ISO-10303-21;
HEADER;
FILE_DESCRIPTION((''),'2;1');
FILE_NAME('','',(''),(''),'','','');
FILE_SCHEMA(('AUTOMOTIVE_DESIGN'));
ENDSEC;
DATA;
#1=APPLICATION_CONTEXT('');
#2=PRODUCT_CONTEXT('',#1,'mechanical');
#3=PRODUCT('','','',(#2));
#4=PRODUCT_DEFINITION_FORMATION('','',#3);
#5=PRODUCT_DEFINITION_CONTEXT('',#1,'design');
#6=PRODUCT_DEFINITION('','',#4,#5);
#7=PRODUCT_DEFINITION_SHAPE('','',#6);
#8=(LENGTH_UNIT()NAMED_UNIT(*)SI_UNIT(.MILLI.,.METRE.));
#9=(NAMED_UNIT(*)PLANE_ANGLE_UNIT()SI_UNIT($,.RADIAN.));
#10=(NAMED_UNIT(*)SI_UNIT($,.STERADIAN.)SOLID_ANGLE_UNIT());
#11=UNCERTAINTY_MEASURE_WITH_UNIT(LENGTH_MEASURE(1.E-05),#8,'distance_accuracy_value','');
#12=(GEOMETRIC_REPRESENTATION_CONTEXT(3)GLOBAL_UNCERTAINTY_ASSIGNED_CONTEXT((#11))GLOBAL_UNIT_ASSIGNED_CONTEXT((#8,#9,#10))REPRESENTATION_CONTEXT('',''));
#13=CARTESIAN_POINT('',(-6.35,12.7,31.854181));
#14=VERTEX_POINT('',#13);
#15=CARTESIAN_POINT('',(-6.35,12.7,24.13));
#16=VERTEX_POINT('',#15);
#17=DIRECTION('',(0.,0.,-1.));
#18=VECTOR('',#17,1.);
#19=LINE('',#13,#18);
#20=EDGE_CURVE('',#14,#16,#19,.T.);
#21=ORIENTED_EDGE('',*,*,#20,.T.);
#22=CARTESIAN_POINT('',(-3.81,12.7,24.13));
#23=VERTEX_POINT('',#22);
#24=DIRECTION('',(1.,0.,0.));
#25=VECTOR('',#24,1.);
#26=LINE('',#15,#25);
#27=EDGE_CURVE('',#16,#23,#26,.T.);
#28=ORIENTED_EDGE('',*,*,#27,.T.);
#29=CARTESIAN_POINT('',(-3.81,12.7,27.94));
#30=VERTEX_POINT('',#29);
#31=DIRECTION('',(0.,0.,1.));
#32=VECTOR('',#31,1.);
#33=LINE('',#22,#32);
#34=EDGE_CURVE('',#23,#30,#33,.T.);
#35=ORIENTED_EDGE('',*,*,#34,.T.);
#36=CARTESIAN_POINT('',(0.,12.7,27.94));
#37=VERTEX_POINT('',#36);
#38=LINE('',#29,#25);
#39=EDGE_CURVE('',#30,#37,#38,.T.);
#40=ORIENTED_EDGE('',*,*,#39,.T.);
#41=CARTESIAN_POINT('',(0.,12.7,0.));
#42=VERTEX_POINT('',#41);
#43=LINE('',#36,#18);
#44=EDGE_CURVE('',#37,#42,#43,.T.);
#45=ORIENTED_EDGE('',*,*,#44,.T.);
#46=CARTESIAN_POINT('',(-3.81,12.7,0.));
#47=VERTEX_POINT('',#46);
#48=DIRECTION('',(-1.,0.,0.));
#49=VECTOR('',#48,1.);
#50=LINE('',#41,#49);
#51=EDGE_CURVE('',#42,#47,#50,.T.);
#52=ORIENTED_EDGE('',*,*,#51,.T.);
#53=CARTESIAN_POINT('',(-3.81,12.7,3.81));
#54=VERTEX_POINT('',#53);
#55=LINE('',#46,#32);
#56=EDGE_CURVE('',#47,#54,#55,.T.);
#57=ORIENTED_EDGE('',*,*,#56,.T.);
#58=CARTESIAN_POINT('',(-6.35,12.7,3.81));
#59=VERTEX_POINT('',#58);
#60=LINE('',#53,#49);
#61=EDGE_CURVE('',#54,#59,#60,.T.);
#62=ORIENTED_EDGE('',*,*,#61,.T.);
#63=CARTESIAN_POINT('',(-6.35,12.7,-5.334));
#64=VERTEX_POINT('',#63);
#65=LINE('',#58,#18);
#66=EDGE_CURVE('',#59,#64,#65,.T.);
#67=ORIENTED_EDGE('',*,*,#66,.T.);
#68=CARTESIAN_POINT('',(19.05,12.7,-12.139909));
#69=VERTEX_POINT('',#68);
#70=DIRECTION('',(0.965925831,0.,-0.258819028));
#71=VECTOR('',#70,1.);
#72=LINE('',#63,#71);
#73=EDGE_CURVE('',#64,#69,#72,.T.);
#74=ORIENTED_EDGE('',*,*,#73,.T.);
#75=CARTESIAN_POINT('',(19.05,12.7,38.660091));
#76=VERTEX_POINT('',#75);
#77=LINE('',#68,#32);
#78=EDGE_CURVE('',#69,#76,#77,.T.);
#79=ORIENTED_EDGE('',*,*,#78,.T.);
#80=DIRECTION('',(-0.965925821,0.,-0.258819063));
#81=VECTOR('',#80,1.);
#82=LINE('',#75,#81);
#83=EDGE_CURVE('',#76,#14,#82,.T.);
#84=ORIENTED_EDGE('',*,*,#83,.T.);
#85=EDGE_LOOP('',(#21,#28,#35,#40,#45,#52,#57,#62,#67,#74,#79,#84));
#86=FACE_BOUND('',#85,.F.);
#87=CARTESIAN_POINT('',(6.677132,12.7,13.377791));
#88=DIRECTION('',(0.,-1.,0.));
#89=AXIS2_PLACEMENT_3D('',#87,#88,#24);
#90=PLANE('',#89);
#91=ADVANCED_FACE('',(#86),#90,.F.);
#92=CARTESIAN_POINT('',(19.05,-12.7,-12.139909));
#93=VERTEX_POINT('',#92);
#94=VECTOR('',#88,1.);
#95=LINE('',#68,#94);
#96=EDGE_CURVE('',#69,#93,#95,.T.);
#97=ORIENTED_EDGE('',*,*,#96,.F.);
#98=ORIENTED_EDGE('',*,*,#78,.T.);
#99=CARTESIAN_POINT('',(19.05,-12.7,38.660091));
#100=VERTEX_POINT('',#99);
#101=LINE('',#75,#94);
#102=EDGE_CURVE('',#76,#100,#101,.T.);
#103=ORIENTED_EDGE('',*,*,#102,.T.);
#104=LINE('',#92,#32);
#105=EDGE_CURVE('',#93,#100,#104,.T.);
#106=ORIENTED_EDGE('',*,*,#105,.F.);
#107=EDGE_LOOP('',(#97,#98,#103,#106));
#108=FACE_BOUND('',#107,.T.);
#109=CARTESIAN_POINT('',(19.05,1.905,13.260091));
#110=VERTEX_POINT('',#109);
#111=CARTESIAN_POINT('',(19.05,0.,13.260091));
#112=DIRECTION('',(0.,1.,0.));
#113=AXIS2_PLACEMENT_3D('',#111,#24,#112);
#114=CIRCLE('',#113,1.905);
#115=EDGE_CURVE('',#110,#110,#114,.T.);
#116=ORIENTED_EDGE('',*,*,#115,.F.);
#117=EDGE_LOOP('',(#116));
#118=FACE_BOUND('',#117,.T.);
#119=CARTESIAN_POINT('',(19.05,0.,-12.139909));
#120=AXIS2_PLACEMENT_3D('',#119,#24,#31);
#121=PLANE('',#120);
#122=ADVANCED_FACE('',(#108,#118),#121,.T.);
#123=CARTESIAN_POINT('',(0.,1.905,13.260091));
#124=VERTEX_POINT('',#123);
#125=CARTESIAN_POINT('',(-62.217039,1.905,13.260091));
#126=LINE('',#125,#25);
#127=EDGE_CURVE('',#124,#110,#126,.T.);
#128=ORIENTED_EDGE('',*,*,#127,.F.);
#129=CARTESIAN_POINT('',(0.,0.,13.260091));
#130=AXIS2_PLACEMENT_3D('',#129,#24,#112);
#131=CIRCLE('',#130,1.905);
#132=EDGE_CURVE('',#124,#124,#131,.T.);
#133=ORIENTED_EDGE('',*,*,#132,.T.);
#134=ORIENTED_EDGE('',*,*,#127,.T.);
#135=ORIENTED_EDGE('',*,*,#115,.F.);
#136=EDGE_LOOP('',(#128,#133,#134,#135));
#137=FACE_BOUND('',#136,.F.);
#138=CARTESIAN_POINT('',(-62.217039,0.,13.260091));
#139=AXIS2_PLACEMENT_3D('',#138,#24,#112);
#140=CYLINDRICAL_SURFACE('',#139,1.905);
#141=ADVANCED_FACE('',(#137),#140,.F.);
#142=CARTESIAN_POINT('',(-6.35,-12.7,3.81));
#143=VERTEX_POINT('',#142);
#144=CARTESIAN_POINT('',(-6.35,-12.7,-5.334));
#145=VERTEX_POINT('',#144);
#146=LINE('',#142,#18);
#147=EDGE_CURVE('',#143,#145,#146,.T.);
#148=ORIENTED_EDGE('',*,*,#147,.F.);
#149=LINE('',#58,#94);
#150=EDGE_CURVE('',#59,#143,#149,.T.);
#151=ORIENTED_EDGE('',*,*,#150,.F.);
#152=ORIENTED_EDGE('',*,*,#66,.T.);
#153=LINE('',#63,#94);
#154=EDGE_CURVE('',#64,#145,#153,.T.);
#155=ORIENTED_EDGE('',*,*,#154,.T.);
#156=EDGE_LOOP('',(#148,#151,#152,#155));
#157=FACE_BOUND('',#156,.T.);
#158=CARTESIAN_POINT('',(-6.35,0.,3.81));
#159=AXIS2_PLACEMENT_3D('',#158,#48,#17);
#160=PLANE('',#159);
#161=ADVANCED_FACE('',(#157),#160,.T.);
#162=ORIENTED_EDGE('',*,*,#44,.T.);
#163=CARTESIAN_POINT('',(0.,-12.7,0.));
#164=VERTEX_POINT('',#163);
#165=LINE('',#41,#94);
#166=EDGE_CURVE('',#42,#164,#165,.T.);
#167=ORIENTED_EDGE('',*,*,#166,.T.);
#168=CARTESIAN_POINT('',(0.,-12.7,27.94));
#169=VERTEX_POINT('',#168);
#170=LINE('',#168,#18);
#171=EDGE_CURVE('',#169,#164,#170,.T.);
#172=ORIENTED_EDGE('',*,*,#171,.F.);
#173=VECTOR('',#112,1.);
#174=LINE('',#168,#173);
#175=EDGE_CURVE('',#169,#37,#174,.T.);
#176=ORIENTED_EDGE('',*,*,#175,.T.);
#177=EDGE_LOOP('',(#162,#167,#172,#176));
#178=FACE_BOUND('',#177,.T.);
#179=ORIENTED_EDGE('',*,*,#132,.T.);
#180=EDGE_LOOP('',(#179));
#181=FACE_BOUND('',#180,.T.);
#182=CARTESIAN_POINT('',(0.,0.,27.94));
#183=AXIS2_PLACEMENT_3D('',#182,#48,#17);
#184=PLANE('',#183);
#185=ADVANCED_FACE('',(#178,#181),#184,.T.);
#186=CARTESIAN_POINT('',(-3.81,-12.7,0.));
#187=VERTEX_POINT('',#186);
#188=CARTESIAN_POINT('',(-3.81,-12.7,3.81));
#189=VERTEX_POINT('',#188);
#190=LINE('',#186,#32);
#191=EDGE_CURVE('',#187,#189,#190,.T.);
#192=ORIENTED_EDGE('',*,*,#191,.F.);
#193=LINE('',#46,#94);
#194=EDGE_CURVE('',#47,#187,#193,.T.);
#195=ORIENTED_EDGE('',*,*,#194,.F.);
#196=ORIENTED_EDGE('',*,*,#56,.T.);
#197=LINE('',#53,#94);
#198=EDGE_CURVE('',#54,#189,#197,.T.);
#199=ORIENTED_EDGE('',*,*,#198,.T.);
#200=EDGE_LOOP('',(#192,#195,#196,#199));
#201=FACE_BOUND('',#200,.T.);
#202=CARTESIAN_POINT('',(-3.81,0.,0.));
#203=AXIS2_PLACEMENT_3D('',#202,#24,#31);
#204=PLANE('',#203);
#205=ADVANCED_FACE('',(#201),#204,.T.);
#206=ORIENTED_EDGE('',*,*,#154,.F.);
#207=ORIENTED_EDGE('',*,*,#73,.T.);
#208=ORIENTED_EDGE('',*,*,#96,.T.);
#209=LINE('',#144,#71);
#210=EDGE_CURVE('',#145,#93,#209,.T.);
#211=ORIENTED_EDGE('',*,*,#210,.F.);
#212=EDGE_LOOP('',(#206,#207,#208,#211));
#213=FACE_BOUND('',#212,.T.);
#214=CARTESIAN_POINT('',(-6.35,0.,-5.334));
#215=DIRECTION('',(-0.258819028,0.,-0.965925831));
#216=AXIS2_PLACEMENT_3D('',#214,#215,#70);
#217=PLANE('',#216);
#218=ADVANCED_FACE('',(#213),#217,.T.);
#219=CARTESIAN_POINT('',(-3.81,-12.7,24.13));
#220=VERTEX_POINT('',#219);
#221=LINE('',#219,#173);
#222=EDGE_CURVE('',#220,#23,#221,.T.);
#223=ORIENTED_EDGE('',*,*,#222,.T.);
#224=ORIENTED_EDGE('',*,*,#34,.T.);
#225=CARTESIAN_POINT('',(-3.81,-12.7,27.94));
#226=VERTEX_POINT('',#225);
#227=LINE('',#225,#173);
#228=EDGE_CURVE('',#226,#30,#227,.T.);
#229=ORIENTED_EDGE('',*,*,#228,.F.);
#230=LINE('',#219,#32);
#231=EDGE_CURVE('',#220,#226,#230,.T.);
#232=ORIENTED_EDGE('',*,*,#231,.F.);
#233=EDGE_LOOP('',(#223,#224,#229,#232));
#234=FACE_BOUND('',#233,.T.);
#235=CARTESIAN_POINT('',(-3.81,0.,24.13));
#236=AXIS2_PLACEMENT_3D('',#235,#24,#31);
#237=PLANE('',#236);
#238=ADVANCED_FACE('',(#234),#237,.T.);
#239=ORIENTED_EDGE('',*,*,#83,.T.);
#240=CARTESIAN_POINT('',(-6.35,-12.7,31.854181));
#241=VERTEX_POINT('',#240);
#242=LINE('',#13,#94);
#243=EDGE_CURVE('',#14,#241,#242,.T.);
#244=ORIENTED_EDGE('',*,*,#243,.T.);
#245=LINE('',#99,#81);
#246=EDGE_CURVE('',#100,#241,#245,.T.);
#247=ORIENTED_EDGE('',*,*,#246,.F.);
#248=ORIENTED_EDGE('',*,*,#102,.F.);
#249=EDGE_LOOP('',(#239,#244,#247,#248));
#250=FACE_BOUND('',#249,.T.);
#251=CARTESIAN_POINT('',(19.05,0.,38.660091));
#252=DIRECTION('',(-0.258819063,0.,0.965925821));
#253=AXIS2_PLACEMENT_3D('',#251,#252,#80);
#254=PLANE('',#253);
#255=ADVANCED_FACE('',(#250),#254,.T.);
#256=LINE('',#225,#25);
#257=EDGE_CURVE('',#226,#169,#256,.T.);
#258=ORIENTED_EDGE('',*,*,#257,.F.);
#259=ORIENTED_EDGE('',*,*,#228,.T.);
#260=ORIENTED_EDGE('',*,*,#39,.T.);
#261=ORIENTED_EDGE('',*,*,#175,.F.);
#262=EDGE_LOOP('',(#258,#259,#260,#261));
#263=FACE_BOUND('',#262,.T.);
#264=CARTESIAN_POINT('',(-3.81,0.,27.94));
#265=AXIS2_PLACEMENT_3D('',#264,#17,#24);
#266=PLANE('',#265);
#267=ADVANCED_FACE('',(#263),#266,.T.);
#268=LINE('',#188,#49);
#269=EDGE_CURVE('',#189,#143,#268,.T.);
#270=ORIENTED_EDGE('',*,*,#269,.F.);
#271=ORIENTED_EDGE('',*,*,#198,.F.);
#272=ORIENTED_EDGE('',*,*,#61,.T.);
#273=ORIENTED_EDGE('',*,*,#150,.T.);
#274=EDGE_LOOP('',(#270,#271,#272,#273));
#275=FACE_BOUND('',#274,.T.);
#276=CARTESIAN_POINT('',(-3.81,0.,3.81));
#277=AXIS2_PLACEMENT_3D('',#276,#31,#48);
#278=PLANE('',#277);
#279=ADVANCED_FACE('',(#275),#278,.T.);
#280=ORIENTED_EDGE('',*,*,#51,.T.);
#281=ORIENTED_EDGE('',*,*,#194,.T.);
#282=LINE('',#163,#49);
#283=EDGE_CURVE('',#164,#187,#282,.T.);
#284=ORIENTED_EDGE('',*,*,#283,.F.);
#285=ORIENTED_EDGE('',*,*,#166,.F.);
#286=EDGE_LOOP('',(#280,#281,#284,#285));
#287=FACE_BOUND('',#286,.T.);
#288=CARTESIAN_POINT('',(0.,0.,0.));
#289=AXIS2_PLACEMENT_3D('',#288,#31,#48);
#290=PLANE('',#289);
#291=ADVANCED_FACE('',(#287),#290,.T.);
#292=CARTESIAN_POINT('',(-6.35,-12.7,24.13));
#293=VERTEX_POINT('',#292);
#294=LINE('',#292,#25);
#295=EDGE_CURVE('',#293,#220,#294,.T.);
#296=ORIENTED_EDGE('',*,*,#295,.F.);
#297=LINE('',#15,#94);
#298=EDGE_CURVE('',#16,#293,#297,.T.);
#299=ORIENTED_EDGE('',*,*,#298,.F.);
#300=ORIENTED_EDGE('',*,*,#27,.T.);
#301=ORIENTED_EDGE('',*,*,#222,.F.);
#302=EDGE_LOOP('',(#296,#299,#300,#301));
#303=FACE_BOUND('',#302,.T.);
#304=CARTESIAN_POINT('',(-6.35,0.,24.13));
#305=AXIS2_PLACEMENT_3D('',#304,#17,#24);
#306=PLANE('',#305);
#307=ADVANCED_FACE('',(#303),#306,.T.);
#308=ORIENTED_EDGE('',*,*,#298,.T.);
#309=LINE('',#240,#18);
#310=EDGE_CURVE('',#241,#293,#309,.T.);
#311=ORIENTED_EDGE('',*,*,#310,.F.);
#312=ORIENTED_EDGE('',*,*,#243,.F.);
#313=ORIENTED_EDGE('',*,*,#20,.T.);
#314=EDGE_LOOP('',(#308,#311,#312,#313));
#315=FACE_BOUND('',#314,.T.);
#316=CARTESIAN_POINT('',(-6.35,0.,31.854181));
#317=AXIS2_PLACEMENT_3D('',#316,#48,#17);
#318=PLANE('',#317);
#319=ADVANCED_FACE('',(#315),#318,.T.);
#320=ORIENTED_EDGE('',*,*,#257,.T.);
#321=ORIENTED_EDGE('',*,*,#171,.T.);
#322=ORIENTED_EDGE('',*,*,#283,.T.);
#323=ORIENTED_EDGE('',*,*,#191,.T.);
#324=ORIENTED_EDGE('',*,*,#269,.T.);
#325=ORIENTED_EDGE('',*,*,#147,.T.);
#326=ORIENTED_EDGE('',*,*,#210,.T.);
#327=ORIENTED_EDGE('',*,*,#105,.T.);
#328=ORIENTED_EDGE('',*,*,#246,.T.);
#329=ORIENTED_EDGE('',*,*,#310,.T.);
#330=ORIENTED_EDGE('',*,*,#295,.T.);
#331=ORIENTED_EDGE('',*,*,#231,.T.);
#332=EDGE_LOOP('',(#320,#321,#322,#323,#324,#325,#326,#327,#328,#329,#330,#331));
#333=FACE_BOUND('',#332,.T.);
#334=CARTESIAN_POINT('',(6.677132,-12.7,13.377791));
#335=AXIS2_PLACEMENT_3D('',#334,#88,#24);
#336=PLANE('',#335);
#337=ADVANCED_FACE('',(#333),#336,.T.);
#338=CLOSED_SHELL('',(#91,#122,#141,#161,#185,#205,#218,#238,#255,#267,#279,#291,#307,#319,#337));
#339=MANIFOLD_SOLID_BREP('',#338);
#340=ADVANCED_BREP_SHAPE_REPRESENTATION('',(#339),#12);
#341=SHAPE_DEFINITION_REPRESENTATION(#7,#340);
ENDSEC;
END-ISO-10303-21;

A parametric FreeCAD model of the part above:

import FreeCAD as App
import Part
import Sketcher

V = App.Vector
Q = App.Units.Quantity


def add_polygon(sketch, points):
    """Adds a closed chain of lines whose ends are joined by coincident constraints."""
    first, n = sketch.GeometryCount, len(points)
    for a, b in zip(points, points[1:] + points[:1]):
        sketch.addGeometry(Part.LineSegment(App.Vector(*a, 0), App.Vector(*b, 0)), False)
    for i in range(n):
        sketch.addConstraint(Sketcher.Constraint("Coincident", first + i, 2, first + (i + 1) % n, 1))

doc = App.newDocument("Part")
params = doc.addObject("Spreadsheet::Sheet", "Params")
for row, (alias, value) in enumerate([
    ("sketch1_height", "2 in"),
    ("sketch1_width", "0.1 in"),
    ("sketch1_height2", "1.1 in"),
    ("sketch1_width2", "0.15 in"),
    ("sketch1_height3", "0.36 in"),
    ("pad1_length", "1 in"),
    ("sketch2_diameter", "0.15 in"),
    ("hole_diameter", "0.15 in"),
], start=1):
    params.set(f"A{row}", alias)
    params.set(f"B{row}", "=" + value)
    params.setAlias(f"B{row}", alias)

body = doc.addObject("PartDesign::Body", "Body")

# Sketch on XZ plane
sketch1 = body.newObject("Sketcher::SketchObject", "Sketch")
sketch1.AttachmentSupport = (doc.getObject("XZ_Plane"), [""])
sketch1.MapMode = "FlatFace"
add_polygon(sketch1, [(0, 27.9), (0, 0), (-3.8, 0), (-3.8, 3.8), (-6.3, 3.8), (-6.3, -5.3), (19.1, -12.1), (19.1, 38.7), (-6.3, 31.9), (-6.3, 24.1), (-3.8, 24.1), (-3.8, 27.9)])  # lines 0-11
sketch1.addConstraint(Sketcher.Constraint("Vertical", 0))
sketch1.addConstraint(Sketcher.Constraint("Horizontal", 1))
sketch1.addConstraint(Sketcher.Constraint("Vertical", 2))
sketch1.addConstraint(Sketcher.Constraint("Horizontal", 3))
sketch1.addConstraint(Sketcher.Constraint("Vertical", 4))
sketch1.addConstraint(Sketcher.Constraint("Vertical", 6))
sketch1.addConstraint(Sketcher.Constraint("Vertical", 8))
sketch1.addConstraint(Sketcher.Constraint("Horizontal", 9))
sketch1.addConstraint(Sketcher.Constraint("Vertical", 10))
sketch1.addConstraint(Sketcher.Constraint("Horizontal", 11))
sketch1.addConstraint(Sketcher.Constraint("Coincident", 0, 2, -1, 1))
sketch1.addConstraint(Sketcher.Constraint("Vertical", 4, 2, 7, 2))
sketch1.addConstraint(Sketcher.Constraint("Vertical", 2, 2, 9, 2))
sketch1.addConstraint(Sketcher.Constraint("Equal", 11, 2))
sketch1.addConstraint(Sketcher.Constraint("Equal", 2, 10))
sketch1.addConstraint(Sketcher.Constraint("Equal", 5, 7))
sketch1.addConstraint(Sketcher.Constraint("DistanceY", 6, 1, 6, 2, Q("2 in")))
sketch1.addConstraint(Sketcher.Constraint("DistanceX", 3, 2, 3, 1, Q("0.1 in")))
sketch1.addConstraint(Sketcher.Constraint("DistanceY", 0, 2, 0, 1, Q("1.1 in")))
sketch1.addConstraint(Sketcher.Constraint("Angle", 5, Q("-14.999999 deg")))
sketch1.addConstraint(Sketcher.Constraint("DistanceX", 4, 2, 5, 2, Q("1 in")))
sketch1.addConstraint(Sketcher.Constraint("DistanceX", 1, 2, 1, 1, Q("0.15 in")))
sketch1.addConstraint(Sketcher.Constraint("DistanceY", 4, 2, 4, 1, Q("0.36 in")))
sketch1.setExpression("Constraints[28]", "Params.sketch1_height")
sketch1.setExpression("Constraints[29]", "Params.sketch1_width")
sketch1.setExpression("Constraints[30]", "Params.sketch1_height2")
sketch1.setExpression("Constraints[33]", "Params.sketch1_width2")
sketch1.setExpression("Constraints[34]", "Params.sketch1_height3")
pad1 = body.newObject("PartDesign::Pad", "Pad")
pad1.Profile = sketch1
pad1.setExpression("Length", "Params.pad1_length")
pad1.Midplane = True

# Sketch on YZ plane
sketch2 = body.newObject("Sketcher::SketchObject", "Sketch001")
sketch2.AttachmentSupport = (doc.getObject("YZ_Plane"), [""])
sketch2.MapMode = "FlatFace"
sketch2.addGeometry(Part.Circle(V(0, 13.3, 0), V(0, 0, 1), 1.9), False)
sketch2.addConstraint(Sketcher.Constraint("PointOnObject", 0, 3, -2))
sketch2.addConstraint(Sketcher.Constraint("Diameter", 0, Q("0.15 in")))
sketch2.addConstraint(Sketcher.Constraint("DistanceY", -1, 1, 0, 3, 13.260091))
sketch2.setExpression("Constraints[1]", "Params.sketch2_diameter")
doc.recompute()
hole = body.newObject("PartDesign::Hole", "Hole")
hole.Profile = sketch2
hole.ThreadType = "None"
hole.setExpression("Diameter", "Params.hole_diameter")
hole.DepthType = "ThroughAll"
hole.Reversed = True

doc.recompute()
